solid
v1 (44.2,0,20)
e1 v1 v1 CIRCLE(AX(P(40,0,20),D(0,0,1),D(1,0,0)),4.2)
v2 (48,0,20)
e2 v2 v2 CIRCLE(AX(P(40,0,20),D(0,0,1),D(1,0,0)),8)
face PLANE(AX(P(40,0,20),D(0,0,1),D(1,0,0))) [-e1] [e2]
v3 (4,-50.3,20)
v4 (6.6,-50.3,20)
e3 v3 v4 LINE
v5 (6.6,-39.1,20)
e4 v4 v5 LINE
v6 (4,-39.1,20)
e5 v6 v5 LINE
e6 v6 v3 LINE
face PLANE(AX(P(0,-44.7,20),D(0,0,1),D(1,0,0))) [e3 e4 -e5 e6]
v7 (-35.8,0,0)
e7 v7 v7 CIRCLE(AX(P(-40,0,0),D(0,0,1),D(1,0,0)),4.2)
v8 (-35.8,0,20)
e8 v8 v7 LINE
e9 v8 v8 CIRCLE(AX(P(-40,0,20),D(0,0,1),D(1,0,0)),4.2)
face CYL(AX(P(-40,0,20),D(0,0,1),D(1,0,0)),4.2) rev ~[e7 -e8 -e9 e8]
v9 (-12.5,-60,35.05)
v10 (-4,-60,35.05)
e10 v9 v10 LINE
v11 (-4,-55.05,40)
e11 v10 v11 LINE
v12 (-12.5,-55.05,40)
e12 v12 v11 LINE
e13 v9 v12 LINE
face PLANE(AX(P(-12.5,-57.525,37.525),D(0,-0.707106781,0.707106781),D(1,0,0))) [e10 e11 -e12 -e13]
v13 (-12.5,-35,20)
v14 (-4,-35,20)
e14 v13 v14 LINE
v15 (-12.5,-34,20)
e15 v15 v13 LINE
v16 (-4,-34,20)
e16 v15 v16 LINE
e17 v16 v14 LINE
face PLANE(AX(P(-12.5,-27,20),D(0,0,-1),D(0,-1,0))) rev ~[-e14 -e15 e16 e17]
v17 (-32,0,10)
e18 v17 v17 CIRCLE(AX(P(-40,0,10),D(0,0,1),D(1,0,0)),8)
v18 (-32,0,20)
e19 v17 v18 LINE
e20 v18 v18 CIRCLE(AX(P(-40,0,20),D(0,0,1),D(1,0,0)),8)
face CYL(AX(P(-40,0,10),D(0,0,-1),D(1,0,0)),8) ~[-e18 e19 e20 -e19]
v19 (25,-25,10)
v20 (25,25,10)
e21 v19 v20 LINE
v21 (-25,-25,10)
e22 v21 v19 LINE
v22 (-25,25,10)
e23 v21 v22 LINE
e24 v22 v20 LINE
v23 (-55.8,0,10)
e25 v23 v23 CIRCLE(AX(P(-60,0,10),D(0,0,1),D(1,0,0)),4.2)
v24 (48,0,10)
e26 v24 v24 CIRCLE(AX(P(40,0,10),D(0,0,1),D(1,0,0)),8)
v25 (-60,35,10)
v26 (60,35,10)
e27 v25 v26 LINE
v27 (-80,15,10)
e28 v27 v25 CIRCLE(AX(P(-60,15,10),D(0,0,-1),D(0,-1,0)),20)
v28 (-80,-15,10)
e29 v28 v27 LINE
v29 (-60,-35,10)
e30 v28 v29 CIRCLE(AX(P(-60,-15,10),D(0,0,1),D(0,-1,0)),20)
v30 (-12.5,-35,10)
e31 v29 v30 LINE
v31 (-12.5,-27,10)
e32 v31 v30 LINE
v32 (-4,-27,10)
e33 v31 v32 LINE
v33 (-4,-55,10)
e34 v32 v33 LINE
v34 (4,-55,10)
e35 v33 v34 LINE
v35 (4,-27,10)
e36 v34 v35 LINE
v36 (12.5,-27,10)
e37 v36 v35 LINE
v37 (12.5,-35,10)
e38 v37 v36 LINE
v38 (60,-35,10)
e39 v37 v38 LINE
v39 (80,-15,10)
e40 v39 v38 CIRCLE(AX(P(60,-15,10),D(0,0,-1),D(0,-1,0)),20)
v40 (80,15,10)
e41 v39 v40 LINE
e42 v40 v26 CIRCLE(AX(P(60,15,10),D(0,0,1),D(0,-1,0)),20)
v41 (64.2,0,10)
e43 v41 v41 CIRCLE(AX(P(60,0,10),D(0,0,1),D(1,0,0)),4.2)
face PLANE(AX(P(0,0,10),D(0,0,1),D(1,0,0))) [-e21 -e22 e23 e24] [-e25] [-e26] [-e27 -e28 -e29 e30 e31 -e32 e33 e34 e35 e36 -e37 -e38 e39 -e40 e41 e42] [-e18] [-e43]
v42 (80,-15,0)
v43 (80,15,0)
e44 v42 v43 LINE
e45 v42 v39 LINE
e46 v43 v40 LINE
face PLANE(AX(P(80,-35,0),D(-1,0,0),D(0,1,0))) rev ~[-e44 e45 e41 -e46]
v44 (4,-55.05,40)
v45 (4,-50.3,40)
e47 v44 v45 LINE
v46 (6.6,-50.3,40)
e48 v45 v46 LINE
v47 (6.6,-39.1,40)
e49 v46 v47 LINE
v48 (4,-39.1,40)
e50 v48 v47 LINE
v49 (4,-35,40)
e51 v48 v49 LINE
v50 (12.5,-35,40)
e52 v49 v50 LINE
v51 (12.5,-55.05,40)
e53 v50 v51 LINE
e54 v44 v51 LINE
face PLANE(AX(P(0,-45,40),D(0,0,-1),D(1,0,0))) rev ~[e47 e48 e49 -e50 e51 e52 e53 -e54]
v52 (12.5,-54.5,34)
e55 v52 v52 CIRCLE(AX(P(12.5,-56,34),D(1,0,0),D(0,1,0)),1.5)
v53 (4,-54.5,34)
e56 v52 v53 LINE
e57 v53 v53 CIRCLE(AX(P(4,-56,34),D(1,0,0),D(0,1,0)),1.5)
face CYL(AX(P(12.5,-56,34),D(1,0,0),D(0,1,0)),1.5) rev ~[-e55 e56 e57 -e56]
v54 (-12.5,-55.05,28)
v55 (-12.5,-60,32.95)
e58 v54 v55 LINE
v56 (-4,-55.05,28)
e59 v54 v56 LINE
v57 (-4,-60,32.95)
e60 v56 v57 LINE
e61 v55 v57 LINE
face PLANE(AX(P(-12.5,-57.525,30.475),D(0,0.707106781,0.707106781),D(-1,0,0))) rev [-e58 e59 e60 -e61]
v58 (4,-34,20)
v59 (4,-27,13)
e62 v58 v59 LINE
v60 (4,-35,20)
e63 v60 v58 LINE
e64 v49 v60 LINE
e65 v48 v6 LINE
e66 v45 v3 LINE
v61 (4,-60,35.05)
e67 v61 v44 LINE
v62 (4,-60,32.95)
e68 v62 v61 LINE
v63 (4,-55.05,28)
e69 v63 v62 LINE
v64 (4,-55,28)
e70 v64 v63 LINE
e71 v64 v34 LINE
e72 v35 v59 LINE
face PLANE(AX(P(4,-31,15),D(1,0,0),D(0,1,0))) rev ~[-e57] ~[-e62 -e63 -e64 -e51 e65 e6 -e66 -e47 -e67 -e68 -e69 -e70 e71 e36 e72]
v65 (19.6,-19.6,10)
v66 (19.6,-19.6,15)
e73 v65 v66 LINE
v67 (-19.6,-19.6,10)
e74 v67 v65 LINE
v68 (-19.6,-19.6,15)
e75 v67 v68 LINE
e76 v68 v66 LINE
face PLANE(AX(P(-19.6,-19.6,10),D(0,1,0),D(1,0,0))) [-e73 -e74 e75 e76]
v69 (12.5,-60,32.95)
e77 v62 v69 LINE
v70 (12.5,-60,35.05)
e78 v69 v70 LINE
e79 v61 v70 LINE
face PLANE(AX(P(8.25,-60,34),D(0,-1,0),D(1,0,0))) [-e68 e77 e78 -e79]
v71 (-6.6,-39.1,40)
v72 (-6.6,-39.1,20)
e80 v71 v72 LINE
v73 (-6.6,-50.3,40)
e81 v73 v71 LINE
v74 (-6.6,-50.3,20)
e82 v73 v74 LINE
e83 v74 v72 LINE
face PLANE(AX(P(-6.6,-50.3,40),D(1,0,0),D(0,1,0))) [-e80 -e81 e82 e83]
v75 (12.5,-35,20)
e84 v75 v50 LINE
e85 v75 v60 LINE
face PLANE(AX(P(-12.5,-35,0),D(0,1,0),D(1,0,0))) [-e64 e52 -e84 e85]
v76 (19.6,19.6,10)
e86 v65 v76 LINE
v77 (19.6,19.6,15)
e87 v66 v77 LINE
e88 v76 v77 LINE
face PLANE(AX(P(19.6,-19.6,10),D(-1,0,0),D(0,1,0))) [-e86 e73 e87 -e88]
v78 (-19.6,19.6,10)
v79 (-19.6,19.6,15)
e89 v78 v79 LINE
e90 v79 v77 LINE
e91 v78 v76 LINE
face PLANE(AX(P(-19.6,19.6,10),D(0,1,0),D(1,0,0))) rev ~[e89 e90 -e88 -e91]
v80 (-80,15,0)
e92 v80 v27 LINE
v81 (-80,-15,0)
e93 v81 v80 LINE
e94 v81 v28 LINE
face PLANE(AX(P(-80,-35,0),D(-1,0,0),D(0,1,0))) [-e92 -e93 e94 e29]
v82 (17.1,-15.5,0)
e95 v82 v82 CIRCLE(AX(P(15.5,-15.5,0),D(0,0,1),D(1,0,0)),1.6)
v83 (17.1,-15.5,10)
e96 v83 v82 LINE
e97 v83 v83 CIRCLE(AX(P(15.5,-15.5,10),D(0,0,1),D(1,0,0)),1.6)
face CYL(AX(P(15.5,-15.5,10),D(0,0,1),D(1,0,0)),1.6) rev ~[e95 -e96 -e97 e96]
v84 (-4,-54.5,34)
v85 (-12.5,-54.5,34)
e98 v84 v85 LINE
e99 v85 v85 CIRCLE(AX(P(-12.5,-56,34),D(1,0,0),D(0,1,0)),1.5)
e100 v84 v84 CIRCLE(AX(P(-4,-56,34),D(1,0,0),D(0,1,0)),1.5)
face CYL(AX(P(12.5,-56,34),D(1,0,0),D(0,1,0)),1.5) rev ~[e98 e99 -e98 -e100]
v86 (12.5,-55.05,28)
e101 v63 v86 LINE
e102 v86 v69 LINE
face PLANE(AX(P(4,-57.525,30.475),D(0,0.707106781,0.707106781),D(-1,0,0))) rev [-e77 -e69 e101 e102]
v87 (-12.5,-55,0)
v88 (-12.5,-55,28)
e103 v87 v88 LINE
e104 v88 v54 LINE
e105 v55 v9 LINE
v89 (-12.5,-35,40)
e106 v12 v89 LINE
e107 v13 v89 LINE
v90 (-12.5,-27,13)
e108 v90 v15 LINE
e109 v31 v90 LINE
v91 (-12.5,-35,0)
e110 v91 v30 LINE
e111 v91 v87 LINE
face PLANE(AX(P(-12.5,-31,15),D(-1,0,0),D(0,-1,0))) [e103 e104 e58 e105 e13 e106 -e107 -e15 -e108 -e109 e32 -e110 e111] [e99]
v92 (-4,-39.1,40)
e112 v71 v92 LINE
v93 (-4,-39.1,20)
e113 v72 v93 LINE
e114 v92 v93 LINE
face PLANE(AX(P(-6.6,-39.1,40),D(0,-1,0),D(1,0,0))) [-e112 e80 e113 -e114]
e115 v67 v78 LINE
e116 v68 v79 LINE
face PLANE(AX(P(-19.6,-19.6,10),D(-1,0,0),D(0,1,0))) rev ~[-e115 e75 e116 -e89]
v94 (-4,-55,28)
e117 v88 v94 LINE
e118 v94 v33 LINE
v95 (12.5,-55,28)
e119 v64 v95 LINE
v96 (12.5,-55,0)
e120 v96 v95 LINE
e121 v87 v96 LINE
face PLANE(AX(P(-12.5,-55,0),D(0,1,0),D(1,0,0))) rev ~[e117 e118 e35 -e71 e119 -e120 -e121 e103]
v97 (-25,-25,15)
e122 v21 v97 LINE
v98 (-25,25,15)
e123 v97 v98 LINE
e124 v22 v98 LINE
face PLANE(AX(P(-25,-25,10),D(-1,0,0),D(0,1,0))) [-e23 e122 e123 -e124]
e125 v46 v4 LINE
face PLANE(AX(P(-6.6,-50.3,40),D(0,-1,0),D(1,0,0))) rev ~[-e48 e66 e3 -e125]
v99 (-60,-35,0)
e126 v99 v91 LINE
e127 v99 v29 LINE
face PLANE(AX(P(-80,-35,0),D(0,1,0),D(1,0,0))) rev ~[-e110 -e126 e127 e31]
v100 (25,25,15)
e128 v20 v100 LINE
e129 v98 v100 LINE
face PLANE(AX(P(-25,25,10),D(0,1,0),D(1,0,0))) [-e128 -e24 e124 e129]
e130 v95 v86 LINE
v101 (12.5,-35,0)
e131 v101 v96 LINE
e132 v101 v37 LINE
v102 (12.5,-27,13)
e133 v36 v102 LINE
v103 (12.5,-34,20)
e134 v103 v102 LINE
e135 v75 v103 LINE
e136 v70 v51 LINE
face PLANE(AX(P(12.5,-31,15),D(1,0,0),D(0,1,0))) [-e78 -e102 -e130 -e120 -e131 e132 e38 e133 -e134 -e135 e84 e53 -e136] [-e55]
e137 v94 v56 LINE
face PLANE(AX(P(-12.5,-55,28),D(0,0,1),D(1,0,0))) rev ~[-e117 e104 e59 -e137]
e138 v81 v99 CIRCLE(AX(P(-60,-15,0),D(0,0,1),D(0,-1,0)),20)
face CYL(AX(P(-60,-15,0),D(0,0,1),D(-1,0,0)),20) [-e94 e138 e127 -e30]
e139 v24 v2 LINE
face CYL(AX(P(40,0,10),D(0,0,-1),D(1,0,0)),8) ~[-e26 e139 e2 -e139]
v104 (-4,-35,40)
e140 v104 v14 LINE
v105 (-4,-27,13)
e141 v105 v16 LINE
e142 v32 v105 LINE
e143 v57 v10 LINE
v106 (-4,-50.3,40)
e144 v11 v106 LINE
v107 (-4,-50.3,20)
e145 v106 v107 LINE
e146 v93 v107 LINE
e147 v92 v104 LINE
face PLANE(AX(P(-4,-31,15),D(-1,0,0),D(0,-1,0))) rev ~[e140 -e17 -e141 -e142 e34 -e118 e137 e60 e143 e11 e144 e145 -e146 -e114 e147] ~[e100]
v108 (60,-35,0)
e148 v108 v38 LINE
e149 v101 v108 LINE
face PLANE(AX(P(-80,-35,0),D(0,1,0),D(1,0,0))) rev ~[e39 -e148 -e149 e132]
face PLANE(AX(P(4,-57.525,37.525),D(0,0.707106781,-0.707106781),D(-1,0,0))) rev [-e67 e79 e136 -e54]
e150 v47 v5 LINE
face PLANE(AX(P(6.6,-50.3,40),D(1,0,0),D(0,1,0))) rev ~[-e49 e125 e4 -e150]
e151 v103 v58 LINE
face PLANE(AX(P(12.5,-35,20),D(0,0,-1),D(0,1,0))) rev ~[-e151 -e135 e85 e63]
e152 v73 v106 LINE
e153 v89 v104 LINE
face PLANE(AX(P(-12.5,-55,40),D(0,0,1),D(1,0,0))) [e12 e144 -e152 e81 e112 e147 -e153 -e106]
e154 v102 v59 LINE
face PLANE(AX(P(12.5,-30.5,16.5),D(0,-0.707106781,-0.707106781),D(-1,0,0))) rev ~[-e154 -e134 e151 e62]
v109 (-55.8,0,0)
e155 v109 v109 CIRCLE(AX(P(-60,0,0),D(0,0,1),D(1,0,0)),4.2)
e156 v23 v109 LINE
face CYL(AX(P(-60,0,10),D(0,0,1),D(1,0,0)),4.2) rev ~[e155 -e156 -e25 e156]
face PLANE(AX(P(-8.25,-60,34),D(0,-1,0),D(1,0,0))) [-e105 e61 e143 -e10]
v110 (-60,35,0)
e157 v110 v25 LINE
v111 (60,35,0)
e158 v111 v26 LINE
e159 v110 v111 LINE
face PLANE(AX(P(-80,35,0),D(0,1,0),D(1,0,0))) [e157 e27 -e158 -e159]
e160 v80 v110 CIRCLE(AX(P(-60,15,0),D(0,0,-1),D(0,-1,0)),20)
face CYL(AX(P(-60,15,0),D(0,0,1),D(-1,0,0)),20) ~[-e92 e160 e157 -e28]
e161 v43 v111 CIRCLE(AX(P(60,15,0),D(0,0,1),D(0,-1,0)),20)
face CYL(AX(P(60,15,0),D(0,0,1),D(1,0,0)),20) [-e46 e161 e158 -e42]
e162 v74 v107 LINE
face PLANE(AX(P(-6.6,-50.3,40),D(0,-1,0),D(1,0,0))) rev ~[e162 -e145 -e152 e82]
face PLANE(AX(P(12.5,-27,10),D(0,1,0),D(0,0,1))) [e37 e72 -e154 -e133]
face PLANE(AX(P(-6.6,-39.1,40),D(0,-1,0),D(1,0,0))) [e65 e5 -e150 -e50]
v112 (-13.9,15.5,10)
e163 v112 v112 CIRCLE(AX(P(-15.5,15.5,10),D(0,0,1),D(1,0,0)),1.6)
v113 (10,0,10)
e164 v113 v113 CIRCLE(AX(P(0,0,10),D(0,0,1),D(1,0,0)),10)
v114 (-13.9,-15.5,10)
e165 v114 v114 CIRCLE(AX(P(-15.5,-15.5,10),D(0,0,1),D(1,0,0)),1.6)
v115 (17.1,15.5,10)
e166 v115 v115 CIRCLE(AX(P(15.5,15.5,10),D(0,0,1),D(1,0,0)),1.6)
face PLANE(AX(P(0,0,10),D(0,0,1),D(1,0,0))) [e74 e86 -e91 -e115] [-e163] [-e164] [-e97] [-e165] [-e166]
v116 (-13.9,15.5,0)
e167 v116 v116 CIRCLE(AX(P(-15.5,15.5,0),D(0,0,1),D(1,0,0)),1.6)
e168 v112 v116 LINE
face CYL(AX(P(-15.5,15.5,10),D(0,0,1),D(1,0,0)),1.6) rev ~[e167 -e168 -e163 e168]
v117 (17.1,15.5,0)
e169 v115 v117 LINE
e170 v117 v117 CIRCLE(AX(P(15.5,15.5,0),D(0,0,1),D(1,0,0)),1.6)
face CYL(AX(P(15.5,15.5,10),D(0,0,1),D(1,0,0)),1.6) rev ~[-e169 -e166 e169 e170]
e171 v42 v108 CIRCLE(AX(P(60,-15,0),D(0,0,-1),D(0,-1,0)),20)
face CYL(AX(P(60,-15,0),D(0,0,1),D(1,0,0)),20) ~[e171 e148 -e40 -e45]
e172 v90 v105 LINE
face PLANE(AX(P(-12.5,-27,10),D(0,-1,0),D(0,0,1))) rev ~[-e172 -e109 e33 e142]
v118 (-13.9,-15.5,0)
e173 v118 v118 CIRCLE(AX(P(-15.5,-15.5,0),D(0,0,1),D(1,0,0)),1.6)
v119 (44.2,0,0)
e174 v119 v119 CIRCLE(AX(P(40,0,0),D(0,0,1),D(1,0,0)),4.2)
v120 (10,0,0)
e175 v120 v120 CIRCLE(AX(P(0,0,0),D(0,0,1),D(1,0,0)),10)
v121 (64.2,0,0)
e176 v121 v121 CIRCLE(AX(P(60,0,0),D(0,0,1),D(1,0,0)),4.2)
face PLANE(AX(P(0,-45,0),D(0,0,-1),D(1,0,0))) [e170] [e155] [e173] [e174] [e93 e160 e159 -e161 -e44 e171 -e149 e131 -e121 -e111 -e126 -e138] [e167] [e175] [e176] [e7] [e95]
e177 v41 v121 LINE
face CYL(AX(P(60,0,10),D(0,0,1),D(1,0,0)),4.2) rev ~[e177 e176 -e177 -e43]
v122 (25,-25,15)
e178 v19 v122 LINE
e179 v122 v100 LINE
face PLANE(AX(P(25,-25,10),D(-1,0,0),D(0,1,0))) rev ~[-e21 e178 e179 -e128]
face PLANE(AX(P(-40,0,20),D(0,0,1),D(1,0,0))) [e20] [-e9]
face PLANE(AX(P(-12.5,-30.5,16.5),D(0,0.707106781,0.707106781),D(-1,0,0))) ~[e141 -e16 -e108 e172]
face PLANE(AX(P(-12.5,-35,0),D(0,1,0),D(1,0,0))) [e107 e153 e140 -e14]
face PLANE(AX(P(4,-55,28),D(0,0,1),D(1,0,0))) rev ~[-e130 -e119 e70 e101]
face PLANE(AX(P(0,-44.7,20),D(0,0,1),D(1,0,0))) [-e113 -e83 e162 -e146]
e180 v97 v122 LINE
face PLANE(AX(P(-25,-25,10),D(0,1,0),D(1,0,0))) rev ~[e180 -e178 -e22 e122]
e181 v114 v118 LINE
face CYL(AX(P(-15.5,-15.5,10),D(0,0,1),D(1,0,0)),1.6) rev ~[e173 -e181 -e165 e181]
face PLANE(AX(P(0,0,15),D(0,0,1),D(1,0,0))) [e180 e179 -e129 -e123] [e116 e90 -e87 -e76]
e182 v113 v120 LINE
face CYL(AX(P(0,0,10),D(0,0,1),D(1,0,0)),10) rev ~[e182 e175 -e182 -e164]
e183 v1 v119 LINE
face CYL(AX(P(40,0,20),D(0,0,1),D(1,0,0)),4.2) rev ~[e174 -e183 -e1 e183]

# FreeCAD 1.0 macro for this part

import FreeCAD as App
import Part
import Sketcher
from FreeCAD import Vector
Q = App.Units.Quantity


def edges_at(feature, points):
    """Names of the edges that pass closest to the given points."""
    edges = feature.Shape.Edges
    near = lambda p: min(range(len(edges)), key=lambda i: edges[i].distToShape(Part.Vertex(*p))[0])
    return sorted({f"Edge{near(p) + 1}" for p in points})

doc = App.newDocument("Part")
params = doc.addObject("Spreadsheet::Sheet", "Params")
for row, (alias, value) in enumerate([
    ("sketch1_width", "160 mm"),
    ("sketch1_height", "70 mm"),
    ("pad1_length", "10 mm"),
    ("sketch2_diameter", "20 mm"),
    ("pocket1_length", "10 mm"),
    ("sketch3_diameter", "16 mm"),
    ("pad2_length", "10 mm"),
    ("sketch4_diameter", "8.4 mm"),
    ("pocket2_length", "20 mm"),
    ("sketch5_width", "50 mm"),
    ("sketch5_width2", "39.2 mm"),
    ("pad3_length", "5 mm"),
    ("sketch6_diameter", "3.2 mm"),
    ("pocket3_length", "10 mm"),
    ("sketch7_diameter", "8.4 mm"),
    ("pocket4_length", "10 mm"),
    ("sketch8_width", "25 mm"),
    ("sketch8_height", "20 mm"),
    ("pad4_length", "40 mm"),
    ("sketch9_width", "8 mm"),
    ("sketch9_height", "20 mm"),
    ("pocket5_length", "30 mm"),
    ("sketch10_width", "13.2 mm"),
    ("sketch10_height", "11.2 mm"),
    ("pocket6_length", "20 mm"),
    ("sketch11_height", "12 mm"),
    ("sketch11_width", "8.5 mm"),
    ("pad5_length", "5 mm"),
    ("sketch12_diameter", "3 mm"),
    ("pocket7_length", "25 mm"),
    ("chamfer_size", "4.95 mm"),
    ("chamfer2_size", "4.95 mm"),
    ("chamfer3_size", "4.95 mm"),
    ("chamfer4_size", "4.95 mm"),
    ("fillet_radius", "20 mm"),
    ("fillet2_radius", "20 mm"),
    ("fillet3_radius", "20 mm"),
    ("fillet4_radius", "20 mm"),
    ("sketch13_width", "8 mm"),
    ("sketch13_height", "10 mm"),
    ("pad6_length", "8.5 mm"),
    ("sketch14_width", "8 mm"),
    ("sketch14_height", "10 mm"),
    ("pad7_length", "8.5 mm"),
    ("chamfer5_size", "7 mm"),
    ("chamfer6_size", "7 mm"),
], start=1):
    params.set(f"A{row}", alias)
    params.set(f"B{row}", "=" + value)
    params.setAlias(f"B{row}", alias)

body = doc.addObject("PartDesign::Body", "Body")

# Sketch on XY plane
sketch1 = body.newObject("Sketcher::SketchObject", "Sketch")
sketch1.AttachmentSupport = (doc.getObject("XY_Plane"), [""])
sketch1.MapMode = "FlatFace"
sketch1.addGeometry([
    Part.LineSegment(Vector(-80, 35, 0), Vector(-80, -35, 0)),
    Part.LineSegment(Vector(-80, -35, 0), Vector(80, -35, 0)),
    Part.LineSegment(Vector(80, -35, 0), Vector(80, 35, 0)),
    Part.LineSegment(Vector(80, 35, 0), Vector(-80, 35, 0)),
], False)
sketch1.addConstraint([
    Sketcher.Constraint("Coincident", 0, 2, 1, 1),
    Sketcher.Constraint("Coincident", 1, 2, 2, 1),
    Sketcher.Constraint("Coincident", 2, 2, 3, 1),
    Sketcher.Constraint("Coincident", 3, 2, 0, 1),
    Sketcher.Constraint("Vertical", 0),
    Sketcher.Constraint("Horizontal", 1),
    Sketcher.Constraint("Vertical", 2),
    Sketcher.Constraint("Horizontal", 3),
    Sketcher.Constraint("Symmetric", 0, 2, 2, 2, -1, 1),
    Sketcher.Constraint("DistanceX", 1, 1, 1, 2, Q("160 mm")),
    Sketcher.Constraint("DistanceY", 0, 2, 0, 1, Q("70 mm")),
])
sketch1.setExpression("Constraints[9]", "Params.sketch1_width")
sketch1.setExpression("Constraints[10]", "Params.sketch1_height")
pad1 = body.newObject("PartDesign::Pad", "Pad")
pad1.Profile = sketch1
pad1.setExpression("Length", "Params.pad1_length")

# Sketch on XY plane
sketch2 = body.newObject("Sketcher::SketchObject", "Sketch001")
sketch2.AttachmentSupport = (doc.getObject("XY_Plane"), [""])
sketch2.MapMode = "FlatFace"
sketch2.AttachmentOffset = App.Placement(Vector(0, 0, 10), App.Rotation())
sketch2.addGeometry(Part.Circle(Vector(0, 0, 0), Vector(0, 0, 1), 10), False)
sketch2.addConstraint([
    Sketcher.Constraint("Coincident", 0, 3, -1, 1),
    Sketcher.Constraint("Diameter", 0, Q("20 mm")),
])
sketch2.setExpression("Constraints[1]", "Params.sketch2_diameter")
pocket1 = body.newObject("PartDesign::Pocket", "Pocket")
pocket1.Profile = sketch2
pocket1.setExpression("Length", "Params.pocket1_length")

# Sketch on XY plane
sketch3 = body.newObject("Sketcher::SketchObject", "Sketch002")
sketch3.AttachmentSupport = (doc.getObject("XY_Plane"), [""])
sketch3.MapMode = "FlatFace"
sketch3.AttachmentOffset = App.Placement(Vector(0, 0, 10), App.Rotation())
sketch3.addGeometry([
    Part.Circle(Vector(-40, 0, 0), Vector(0, 0, 1), 8),
    Part.Circle(Vector(40, 0, 0), Vector(0, 0, 1), 8),
], False)
sketch3.addConstraint([
    Sketcher.Constraint("Equal", 0, 1),
    Sketcher.Constraint("Symmetric", 0, 3, 1, 3, -1, 1),
    Sketcher.Constraint("PointOnObject", 0, 3, -1),
    Sketcher.Constraint("Diameter", 0, Q("16 mm")),
    Sketcher.Constraint("DistanceX", 0, 3, -1, 1, Q("40 mm")),
])
sketch3.setExpression("Constraints[3]", "Params.sketch3_diameter")
pad2 = body.newObject("PartDesign::Pad", "Pad001")
pad2.Profile = sketch3
pad2.setExpression("Length", "Params.pad2_length")

# Sketch on XY plane
sketch4 = body.newObject("Sketcher::SketchObject", "Sketch003")
sketch4.AttachmentSupport = (doc.getObject("XY_Plane"), [""])
sketch4.MapMode = "FlatFace"
sketch4.AttachmentOffset = App.Placement(Vector(0, 0, 20), App.Rotation())
sketch4.addGeometry([
    Part.Circle(Vector(-40, 0, 0), Vector(0, 0, 1), 4.2),
    Part.Circle(Vector(40, 0, 0), Vector(0, 0, 1), 4.2),
], False)
sketch4.addConstraint([
    Sketcher.Constraint("Equal", 0, 1),
    Sketcher.Constraint("Symmetric", 0, 3, 1, 3, -1, 1),
    Sketcher.Constraint("PointOnObject", 0, 3, -1),
    Sketcher.Constraint("Diameter", 0, Q("8.4 mm")),
    Sketcher.Constraint("DistanceX", 0, 3, -1, 1, Q("40 mm")),
])
sketch4.setExpression("Constraints[3]", "Params.sketch4_diameter")
pocket2 = body.newObject("PartDesign::Pocket", "Pocket001")
pocket2.Profile = sketch4
pocket2.setExpression("Length", "Params.pocket2_length")

# Sketch on XY plane
sketch5 = body.newObject("Sketcher::SketchObject", "Sketch004")
sketch5.AttachmentSupport = (doc.getObject("XY_Plane"), [""])
sketch5.MapMode = "FlatFace"
sketch5.AttachmentOffset = App.Placement(Vector(0, 0, 10), App.Rotation())
sketch5.addGeometry([
    Part.LineSegment(Vector(-25, 25, 0), Vector(-25, -25, 0)),  # 0
    Part.LineSegment(Vector(-25, -25, 0), Vector(25, -25, 0)),  # 1
    Part.LineSegment(Vector(25, -25, 0), Vector(25, 25, 0)),  # 2
    Part.LineSegment(Vector(25, 25, 0), Vector(-25, 25, 0)),  # 3
    Part.LineSegment(Vector(19.6, -19.6, 0), Vector(-19.6, -19.6, 0)),  # 4
    Part.LineSegment(Vector(-19.6, -19.6, 0), Vector(-19.6, 19.6, 0)),  # 5
    Part.LineSegment(Vector(-19.6, 19.6, 0), Vector(19.6, 19.6, 0)),  # 6
    Part.LineSegment(Vector(19.6, 19.6, 0), Vector(19.6, -19.6, 0)),  # 7
], False)
sketch5.addConstraint([
    Sketcher.Constraint("Coincident", 0, 2, 1, 1),
    Sketcher.Constraint("Coincident", 1, 2, 2, 1),
    Sketcher.Constraint("Coincident", 2, 2, 3, 1),
    Sketcher.Constraint("Coincident", 3, 2, 0, 1),
    Sketcher.Constraint("Coincident", 4, 2, 5, 1),
    Sketcher.Constraint("Coincident", 5, 2, 6, 1),
    Sketcher.Constraint("Coincident", 6, 2, 7, 1),
    Sketcher.Constraint("Coincident", 7, 2, 4, 1),
    Sketcher.Constraint("Vertical", 0),
    Sketcher.Constraint("Horizontal", 1),
    Sketcher.Constraint("Vertical", 2),
    Sketcher.Constraint("Horizontal", 3),
    Sketcher.Constraint("Horizontal", 4),
    Sketcher.Constraint("Vertical", 5),
    Sketcher.Constraint("Horizontal", 6),
    Sketcher.Constraint("Vertical", 7),
    Sketcher.Constraint("Symmetric", 0, 2, 2, 2, -1, 1),
    Sketcher.Constraint("Symmetric", 4, 2, 6, 2, -1, 1),
    Sketcher.Constraint("Equal", 3, 0),
    Sketcher.Constraint("Equal", 6, 5),
    Sketcher.Constraint("DistanceX", 1, 1, 1, 2, Q("50 mm")),
    Sketcher.Constraint("DistanceX", 4, 2, 4, 1, Q("39.2 mm")),
])
sketch5.setExpression("Constraints[20]", "Params.sketch5_width")
sketch5.setExpression("Constraints[21]", "Params.sketch5_width2")
pad3 = body.newObject("PartDesign::Pad", "Pad002")
pad3.Profile = sketch5
pad3.setExpression("Length", "Params.pad3_length")

# Sketch on XY plane
sketch6 = body.newObject("Sketcher::SketchObject", "Sketch005")
sketch6.AttachmentSupport = (doc.getObject("XY_Plane"), [""])
sketch6.MapMode = "FlatFace"
sketch6.AttachmentOffset = App.Placement(Vector(0, 0, 10), App.Rotation())
sketch6.addGeometry([
    Part.Circle(Vector(-15.5, 15.5, 0), Vector(0, 0, 1), 1.6),
    Part.Circle(Vector(15.5, 15.5, 0), Vector(0, 0, 1), 1.6),
    Part.Circle(Vector(-15.5, -15.5, 0), Vector(0, 0, 1), 1.6),
    Part.Circle(Vector(15.5, -15.5, 0), Vector(0, 0, 1), 1.6),
], False)
sketch6.addConstraint([
    Sketcher.Constraint("Equal", 0, 1),
    Sketcher.Constraint("Equal", 1, 2),
    Sketcher.Constraint("Equal", 2, 3),
    Sketcher.Constraint("Symmetric", 1, 3, 2, 3, -1, 1),
    Sketcher.Constraint("Symmetric", 0, 3, 3, 3, -1, 1),
    Sketcher.Constraint("Symmetric", 0, 3, 1, 3, -2),
    Sketcher.Constraint("Diameter", 0, Q("3.2 mm")),
    Sketcher.Constraint("DistanceX", 0, 3, 1, 3, Q("31 mm")),
    Sketcher.Constraint("DistanceY", 2, 3, 0, 3, Q("31 mm")),
])
sketch6.setExpression("Constraints[6]", "Params.sketch6_diameter")
pocket3 = body.newObject("PartDesign::Pocket", "Pocket002")
pocket3.Profile = sketch6
pocket3.setExpression("Length", "Params.pocket3_length")

# Sketch on XY plane
sketch7 = body.newObject("Sketcher::SketchObject", "Sketch006")
sketch7.AttachmentSupport = (doc.getObject("XY_Plane"), [""])
sketch7.MapMode = "FlatFace"
sketch7.AttachmentOffset = App.Placement(Vector(0, 0, 10), App.Rotation())
sketch7.addGeometry([
    Part.Circle(Vector(-60, 0, 0), Vector(0, 0, 1), 4.2),
    Part.Circle(Vector(60, 0, 0), Vector(0, 0, 1), 4.2),
], False)
sketch7.addConstraint([
    Sketcher.Constraint("Equal", 0, 1),
    Sketcher.Constraint("Symmetric", 0, 3, 1, 3, -1, 1),
    Sketcher.Constraint("PointOnObject", 0, 3, -1),
    Sketcher.Constraint("Diameter", 0, Q("8.4 mm")),
    Sketcher.Constraint("DistanceX", 0, 3, -1, 1, Q("60 mm")),
])
sketch7.setExpression("Constraints[3]", "Params.sketch7_diameter")
pocket4 = body.newObject("PartDesign::Pocket", "Pocket003")
pocket4.Profile = sketch7
pocket4.setExpression("Length", "Params.pocket4_length")

# Sketch on XY plane
sketch8 = body.newObject("Sketcher::SketchObject", "Sketch007")
sketch8.AttachmentSupport = (doc.getObject("XY_Plane"), [""])
sketch8.MapMode = "FlatFace"
sketch8.addGeometry([
    Part.LineSegment(Vector(-12.5, -55, 0), Vector(-12.5, -35, 0)),
    Part.LineSegment(Vector(-12.5, -35, 0), Vector(12.5, -35, 0)),
    Part.LineSegment(Vector(12.5, -35, 0), Vector(12.5, -55, 0)),
    Part.LineSegment(Vector(12.5, -55, 0), Vector(-12.5, -55, 0)),
], False)
sketch8.addConstraint([
    Sketcher.Constraint("Coincident", 0, 2, 1, 1),
    Sketcher.Constraint("Coincident", 1, 2, 2, 1),
    Sketcher.Constraint("Coincident", 2, 2, 3, 1),
    Sketcher.Constraint("Coincident", 3, 2, 0, 1),
    Sketcher.Constraint("Vertical", 0),
    Sketcher.Constraint("Horizontal", 1),
    Sketcher.Constraint("Vertical", 2),
    Sketcher.Constraint("Horizontal", 3),
    Sketcher.Constraint("DistanceX", 1, 1, 1, 2, Q("25 mm")),
    Sketcher.Constraint("DistanceY", 0, 1, 0, 2, Q("20 mm")),
    Sketcher.Constraint("DistanceY", 0, 2, -1, 1, Q("35 mm")),
    Sketcher.Constraint("DistanceX", 0, 2, -1, 1, Q("12.5 mm")),
])
sketch8.setExpression("Constraints[8]", "Params.sketch8_width")
sketch8.setExpression("Constraints[9]", "Params.sketch8_height")
pad4 = body.newObject("PartDesign::Pad", "Pad003")
pad4.Profile = sketch8
pad4.setExpression("Length", "Params.pad4_length")

# Sketch on XY plane
sketch9 = body.newObject("Sketcher::SketchObject", "Sketch008")
sketch9.AttachmentSupport = (doc.getObject("XY_Plane"), [""])
sketch9.MapMode = "FlatFace"
sketch9.AttachmentOffset = App.Placement(Vector(0, 0, 40), App.Rotation())
sketch9.addGeometry([
    Part.LineSegment(Vector(-4, -35, 0), Vector(-4, -55, 0)),
    Part.LineSegment(Vector(-4, -55, 0), Vector(4, -55, 0)),
    Part.LineSegment(Vector(4, -55, 0), Vector(4, -35, 0)),
    Part.LineSegment(Vector(4, -35, 0), Vector(-4, -35, 0)),
], False)
sketch9.addConstraint([
    Sketcher.Constraint("Coincident", 0, 2, 1, 1),
    Sketcher.Constraint("Coincident", 1, 2, 2, 1),
    Sketcher.Constraint("Coincident", 2, 2, 3, 1),
    Sketcher.Constraint("Coincident", 3, 2, 0, 1),
    Sketcher.Constraint("Vertical", 0),
    Sketcher.Constraint("Horizontal", 1),
    Sketcher.Constraint("Vertical", 2),
    Sketcher.Constraint("Horizontal", 3),
    Sketcher.Constraint("DistanceX", 1, 1, 1, 2, Q("8 mm")),
    Sketcher.Constraint("DistanceY", 0, 2, 0, 1, Q("20 mm")),
    Sketcher.Constraint("DistanceX", 0, 2, -1, 1, Q("4 mm")),
    Sketcher.Constraint("DistanceY", 0, 2, -1, 1, Q("55 mm")),
])
sketch9.setExpression("Constraints[8]", "Params.sketch9_width")
sketch9.setExpression("Constraints[9]", "Params.sketch9_height")
pocket5 = body.newObject("PartDesign::Pocket", "Pocket004")
pocket5.Profile = sketch9
pocket5.setExpression("Length", "Params.pocket5_length")

# Sketch on XY plane
sketch10 = body.newObject("Sketcher::SketchObject", "Sketch009")
sketch10.AttachmentSupport = (doc.getObject("XY_Plane"), [""])
sketch10.MapMode = "FlatFace"
sketch10.AttachmentOffset = App.Placement(Vector(0, 0, 40), App.Rotation())
sketch10.addGeometry([
    Part.LineSegment(Vector(-6.6, -39.1, 0), Vector(-6.6, -50.3, 0)),
    Part.LineSegment(Vector(-6.6, -50.3, 0), Vector(6.6, -50.3, 0)),
    Part.LineSegment(Vector(6.6, -50.3, 0), Vector(6.6, -39.1, 0)),
    Part.LineSegment(Vector(6.6, -39.1, 0), Vector(-6.6, -39.1, 0)),
], False)
sketch10.addConstraint([
    Sketcher.Constraint("Coincident", 0, 2, 1, 1),
    Sketcher.Constraint("Coincident", 1, 2, 2, 1),
    Sketcher.Constraint("Coincident", 2, 2, 3, 1),
    Sketcher.Constraint("Coincident", 3, 2, 0, 1),
    Sketcher.Constraint("Vertical", 0),
    Sketcher.Constraint("Horizontal", 1),
    Sketcher.Constraint("Vertical", 2),
    Sketcher.Constraint("Horizontal", 3),
    Sketcher.Constraint("DistanceX", 1, 1, 1, 2, Q("13.2 mm")),
    Sketcher.Constraint("DistanceY", 0, 2, 0, 1, Q("11.2 mm")),
    Sketcher.Constraint("DistanceX", 0, 2, -1, 1, Q("6.6 mm")),
    Sketcher.Constraint("DistanceY", 0, 2, -1, 1, Q("50.3 mm")),
])
sketch10.setExpression("Constraints[8]", "Params.sketch10_width")
sketch10.setExpression("Constraints[9]", "Params.sketch10_height")
pocket6 = body.newObject("PartDesign::Pocket", "Pocket005")
pocket6.Profile = sketch10
pocket6.setExpression("Length", "Params.pocket6_length")

# Sketch on XZ plane
sketch11 = body.newObject("Sketcher::SketchObject", "Sketch010")
sketch11.AttachmentSupport = (doc.getObject("XZ_Plane"), [""])
sketch11.MapMode = "FlatFace"
sketch11.AttachmentOffset = App.Placement(Vector(0, 0, 55), App.Rotation())
sketch11.addGeometry([
    Part.LineSegment(Vector(-12.5, 40, 0), Vector(-12.5, 28, 0)),  # 0
    Part.LineSegment(Vector(-12.5, 28, 0), Vector(-4, 28, 0)),  # 1
    Part.LineSegment(Vector(-4, 28, 0), Vector(-4, 40, 0)),  # 2
    Part.LineSegment(Vector(-4, 40, 0), Vector(-12.5, 40, 0)),  # 3
    Part.LineSegment(Vector(4, 40, 0), Vector(4, 28, 0)),  # 4
    Part.LineSegment(Vector(4, 28, 0), Vector(12.5, 28, 0)),  # 5
    Part.LineSegment(Vector(12.5, 28, 0), Vector(12.5, 40, 0)),  # 6
    Part.LineSegment(Vector(12.5, 40, 0), Vector(4, 40, 0)),  # 7
], False)
sketch11.addConstraint([
    Sketcher.Constraint("Coincident", 0, 2, 1, 1),
    Sketcher.Constraint("Coincident", 1, 2, 2, 1),
    Sketcher.Constraint("Coincident", 2, 2, 3, 1),
    Sketcher.Constraint("Coincident", 3, 2, 0, 1),
    Sketcher.Constraint("Coincident", 4, 2, 5, 1),
    Sketcher.Constraint("Coincident", 5, 2, 6, 1),
    Sketcher.Constraint("Coincident", 6, 2, 7, 1),
    Sketcher.Constraint("Coincident", 7, 2, 4, 1),
    Sketcher.Constraint("Vertical", 0),
    Sketcher.Constraint("Horizontal", 1),
    Sketcher.Constraint("Vertical", 2),
    Sketcher.Constraint("Horizontal", 3),
    Sketcher.Constraint("Vertical", 4),
    Sketcher.Constraint("Horizontal", 5),
    Sketcher.Constraint("Vertical", 6),
    Sketcher.Constraint("Horizontal", 7),
    Sketcher.Constraint("Symmetric", 1, 2, 4, 2, -2),
    Sketcher.Constraint("Symmetric", 3, 2, 6, 2, -2),
    Sketcher.Constraint("DistanceY", 0, 2, 0, 1, Q("12 mm")),
    Sketcher.Constraint("DistanceX", 1, 1, 1, 2, Q("8.5 mm")),
    Sketcher.Constraint("DistanceY", -1, 1, 0, 2, Q("28 mm")),
    Sketcher.Constraint("DistanceX", 1, 2, -1, 1, Q("4 mm")),
])
sketch11.setExpression("Constraints[18]", "Params.sketch11_height")
sketch11.setExpression("Constraints[19]", "Params.sketch11_width")
pad5 = body.newObject("PartDesign::Pad", "Pad004")
pad5.Profile = sketch11
pad5.setExpression("Length", "Params.pad5_length")

# Sketch on YZ plane
sketch12 = body.newObject("Sketcher::SketchObject", "Sketch011")
sketch12.AttachmentSupport = (doc.getObject("YZ_Plane"), [""])
sketch12.MapMode = "FlatFace"
sketch12.AttachmentOffset = App.Placement(Vector(0, 0, 12.5), App.Rotation())
sketch12.addGeometry(Part.Circle(Vector(-56, 34, 0), Vector(0, 0, 1), 1.5), False)
sketch12.addConstraint([
    Sketcher.Constraint("Diameter", 0, Q("3 mm")),
    Sketcher.Constraint("DistanceX", 0, 3, -1, 1, Q("56 mm")),
    Sketcher.Constraint("DistanceY", -1, 1, 0, 3, Q("34 mm")),
])
sketch12.setExpression("Constraints[0]", "Params.sketch12_diameter")
pocket7 = body.newObject("PartDesign::Pocket", "Pocket006")
pocket7.Profile = sketch12
pocket7.setExpression("Length", "Params.pocket7_length")
doc.recompute()

chamfer = body.newObject("PartDesign::Chamfer", "Chamfer")
chamfer.Base = (pocket7, edges_at(pocket7, [(8.25, -60, 28)]))
chamfer.setExpression("Size", "Params.chamfer_size")
doc.recompute()

chamfer2 = body.newObject("PartDesign::Chamfer", "Chamfer001")
chamfer2.Base = (chamfer, edges_at(chamfer, [(-8.25, -60, 28)]))
chamfer2.setExpression("Size", "Params.chamfer2_size")
doc.recompute()

chamfer3 = body.newObject("PartDesign::Chamfer", "Chamfer002")
chamfer3.Base = (chamfer2, edges_at(chamfer2, [(8.25, -60, 40)]))
chamfer3.setExpression("Size", "Params.chamfer3_size")
doc.recompute()

chamfer4 = body.newObject("PartDesign::Chamfer", "Chamfer003")
chamfer4.Base = (chamfer3, edges_at(chamfer3, [(-8.25, -60, 40)]))
chamfer4.setExpression("Size", "Params.chamfer4_size")
doc.recompute()

fillet = body.newObject("PartDesign::Fillet", "Fillet")
fillet.Base = (chamfer4, edges_at(chamfer4, [(-80, -35, 5)]))
fillet.setExpression("Radius", "Params.fillet_radius")
doc.recompute()

fillet2 = body.newObject("PartDesign::Fillet", "Fillet001")
fillet2.Base = (fillet, edges_at(fillet, [(-80, 35, 5)]))
fillet2.setExpression("Radius", "Params.fillet2_radius")
doc.recompute()

fillet3 = body.newObject("PartDesign::Fillet", "Fillet002")
fillet3.Base = (fillet2, edges_at(fillet2, [(80, -35, 5)]))
fillet3.setExpression("Radius", "Params.fillet3_radius")
doc.recompute()

fillet4 = body.newObject("PartDesign::Fillet", "Fillet003")
fillet4.Base = (fillet3, edges_at(fillet3, [(80, 35, 5)]))
fillet4.setExpression("Radius", "Params.fillet4_radius")

# Sketch on YZ plane
sketch13 = body.newObject("Sketcher::SketchObject", "Sketch012")
sketch13.AttachmentSupport = (doc.getObject("YZ_Plane"), [""])
sketch13.MapMode = "FlatFace"
sketch13.AttachmentOffset = App.Placement(Vector(0, 0, 12.5), App.Rotation())
sketch13.addGeometry([
    Part.LineSegment(Vector(-35, 20, 0), Vector(-35, 10, 0)),
    Part.LineSegment(Vector(-35, 10, 0), Vector(-27, 10, 0)),
    Part.LineSegment(Vector(-27, 10, 0), Vector(-27, 20, 0)),
    Part.LineSegment(Vector(-27, 20, 0), Vector(-35, 20, 0)),
], False)
sketch13.addConstraint([
    Sketcher.Constraint("Coincident", 0, 2, 1, 1),
    Sketcher.Constraint("Coincident", 1, 2, 2, 1),
    Sketcher.Constraint("Coincident", 2, 2, 3, 1),
    Sketcher.Constraint("Coincident", 3, 2, 0, 1),
    Sketcher.Constraint("Vertical", 0),
    Sketcher.Constraint("Horizontal", 1),
    Sketcher.Constraint("Vertical", 2),
    Sketcher.Constraint("Horizontal", 3),
    Sketcher.Constraint("DistanceX", 1, 1, 1, 2, Q("8 mm")),
    Sketcher.Constraint("DistanceY", 0, 2, 0, 1, Q("10 mm")),
    Sketcher.Constraint("DistanceX", 0, 2, -1, 1, Q("35 mm")),
    Sketcher.Constraint("DistanceY", -1, 1, 0, 2, Q("10 mm")),
])
sketch13.setExpression("Constraints[8]", "Params.sketch13_width")
sketch13.setExpression("Constraints[9]", "Params.sketch13_height")
pad6 = body.newObject("PartDesign::Pad", "Pad005")
pad6.Profile = sketch13
pad6.setExpression("Length", "Params.pad6_length")
pad6.Reversed = True

# Sketch on YZ plane
sketch14 = body.newObject("Sketcher::SketchObject", "Sketch013")
sketch14.AttachmentSupport = (doc.getObject("YZ_Plane"), [""])
sketch14.MapMode = "FlatFace"
sketch14.AttachmentOffset = App.Placement(Vector(0, 0, -12.5), App.Rotation())
sketch14.addGeometry([
    Part.LineSegment(Vector(-27, 20, 0), Vector(-27, 10, 0)),
    Part.LineSegment(Vector(-27, 10, 0), Vector(-35, 10, 0)),
    Part.LineSegment(Vector(-35, 10, 0), Vector(-35, 20, 0)),
    Part.LineSegment(Vector(-35, 20, 0), Vector(-27, 20, 0)),
], False)
sketch14.addConstraint([
    Sketcher.Constraint("Coincident", 0, 2, 1, 1),
    Sketcher.Constraint("Coincident", 1, 2, 2, 1),
    Sketcher.Constraint("Coincident", 2, 2, 3, 1),
    Sketcher.Constraint("Coincident", 3, 2, 0, 1),
    Sketcher.Constraint("Vertical", 0),
    Sketcher.Constraint("Horizontal", 1),
    Sketcher.Constraint("Vertical", 2),
    Sketcher.Constraint("Horizontal", 3),
    Sketcher.Constraint("DistanceX", 1, 2, 1, 1, Q("8 mm")),
    Sketcher.Constraint("DistanceY", 0, 2, 0, 1, Q("10 mm")),
    Sketcher.Constraint("DistanceX", 0, 2, -1, 1, Q("27 mm")),
    Sketcher.Constraint("DistanceY", -1, 1, 0, 2, Q("10 mm")),
])
sketch14.setExpression("Constraints[8]", "Params.sketch14_width")
sketch14.setExpression("Constraints[9]", "Params.sketch14_height")
pad7 = body.newObject("PartDesign::Pad", "Pad006")
pad7.Profile = sketch14
pad7.setExpression("Length", "Params.pad7_length")
doc.recompute()

chamfer5 = body.newObject("PartDesign::Chamfer", "Chamfer004")
chamfer5.Base = (pad7, edges_at(pad7, [(8.25, -27, 20)]))
chamfer5.setExpression("Size", "Params.chamfer5_size")
doc.recompute()

chamfer6 = body.newObject("PartDesign::Chamfer", "Chamfer005")
chamfer6.Base = (chamfer5, edges_at(chamfer5, [(-8.25, -27, 20)]))
chamfer6.setExpression("Size", "Params.chamfer6_size")

doc.recompute()
